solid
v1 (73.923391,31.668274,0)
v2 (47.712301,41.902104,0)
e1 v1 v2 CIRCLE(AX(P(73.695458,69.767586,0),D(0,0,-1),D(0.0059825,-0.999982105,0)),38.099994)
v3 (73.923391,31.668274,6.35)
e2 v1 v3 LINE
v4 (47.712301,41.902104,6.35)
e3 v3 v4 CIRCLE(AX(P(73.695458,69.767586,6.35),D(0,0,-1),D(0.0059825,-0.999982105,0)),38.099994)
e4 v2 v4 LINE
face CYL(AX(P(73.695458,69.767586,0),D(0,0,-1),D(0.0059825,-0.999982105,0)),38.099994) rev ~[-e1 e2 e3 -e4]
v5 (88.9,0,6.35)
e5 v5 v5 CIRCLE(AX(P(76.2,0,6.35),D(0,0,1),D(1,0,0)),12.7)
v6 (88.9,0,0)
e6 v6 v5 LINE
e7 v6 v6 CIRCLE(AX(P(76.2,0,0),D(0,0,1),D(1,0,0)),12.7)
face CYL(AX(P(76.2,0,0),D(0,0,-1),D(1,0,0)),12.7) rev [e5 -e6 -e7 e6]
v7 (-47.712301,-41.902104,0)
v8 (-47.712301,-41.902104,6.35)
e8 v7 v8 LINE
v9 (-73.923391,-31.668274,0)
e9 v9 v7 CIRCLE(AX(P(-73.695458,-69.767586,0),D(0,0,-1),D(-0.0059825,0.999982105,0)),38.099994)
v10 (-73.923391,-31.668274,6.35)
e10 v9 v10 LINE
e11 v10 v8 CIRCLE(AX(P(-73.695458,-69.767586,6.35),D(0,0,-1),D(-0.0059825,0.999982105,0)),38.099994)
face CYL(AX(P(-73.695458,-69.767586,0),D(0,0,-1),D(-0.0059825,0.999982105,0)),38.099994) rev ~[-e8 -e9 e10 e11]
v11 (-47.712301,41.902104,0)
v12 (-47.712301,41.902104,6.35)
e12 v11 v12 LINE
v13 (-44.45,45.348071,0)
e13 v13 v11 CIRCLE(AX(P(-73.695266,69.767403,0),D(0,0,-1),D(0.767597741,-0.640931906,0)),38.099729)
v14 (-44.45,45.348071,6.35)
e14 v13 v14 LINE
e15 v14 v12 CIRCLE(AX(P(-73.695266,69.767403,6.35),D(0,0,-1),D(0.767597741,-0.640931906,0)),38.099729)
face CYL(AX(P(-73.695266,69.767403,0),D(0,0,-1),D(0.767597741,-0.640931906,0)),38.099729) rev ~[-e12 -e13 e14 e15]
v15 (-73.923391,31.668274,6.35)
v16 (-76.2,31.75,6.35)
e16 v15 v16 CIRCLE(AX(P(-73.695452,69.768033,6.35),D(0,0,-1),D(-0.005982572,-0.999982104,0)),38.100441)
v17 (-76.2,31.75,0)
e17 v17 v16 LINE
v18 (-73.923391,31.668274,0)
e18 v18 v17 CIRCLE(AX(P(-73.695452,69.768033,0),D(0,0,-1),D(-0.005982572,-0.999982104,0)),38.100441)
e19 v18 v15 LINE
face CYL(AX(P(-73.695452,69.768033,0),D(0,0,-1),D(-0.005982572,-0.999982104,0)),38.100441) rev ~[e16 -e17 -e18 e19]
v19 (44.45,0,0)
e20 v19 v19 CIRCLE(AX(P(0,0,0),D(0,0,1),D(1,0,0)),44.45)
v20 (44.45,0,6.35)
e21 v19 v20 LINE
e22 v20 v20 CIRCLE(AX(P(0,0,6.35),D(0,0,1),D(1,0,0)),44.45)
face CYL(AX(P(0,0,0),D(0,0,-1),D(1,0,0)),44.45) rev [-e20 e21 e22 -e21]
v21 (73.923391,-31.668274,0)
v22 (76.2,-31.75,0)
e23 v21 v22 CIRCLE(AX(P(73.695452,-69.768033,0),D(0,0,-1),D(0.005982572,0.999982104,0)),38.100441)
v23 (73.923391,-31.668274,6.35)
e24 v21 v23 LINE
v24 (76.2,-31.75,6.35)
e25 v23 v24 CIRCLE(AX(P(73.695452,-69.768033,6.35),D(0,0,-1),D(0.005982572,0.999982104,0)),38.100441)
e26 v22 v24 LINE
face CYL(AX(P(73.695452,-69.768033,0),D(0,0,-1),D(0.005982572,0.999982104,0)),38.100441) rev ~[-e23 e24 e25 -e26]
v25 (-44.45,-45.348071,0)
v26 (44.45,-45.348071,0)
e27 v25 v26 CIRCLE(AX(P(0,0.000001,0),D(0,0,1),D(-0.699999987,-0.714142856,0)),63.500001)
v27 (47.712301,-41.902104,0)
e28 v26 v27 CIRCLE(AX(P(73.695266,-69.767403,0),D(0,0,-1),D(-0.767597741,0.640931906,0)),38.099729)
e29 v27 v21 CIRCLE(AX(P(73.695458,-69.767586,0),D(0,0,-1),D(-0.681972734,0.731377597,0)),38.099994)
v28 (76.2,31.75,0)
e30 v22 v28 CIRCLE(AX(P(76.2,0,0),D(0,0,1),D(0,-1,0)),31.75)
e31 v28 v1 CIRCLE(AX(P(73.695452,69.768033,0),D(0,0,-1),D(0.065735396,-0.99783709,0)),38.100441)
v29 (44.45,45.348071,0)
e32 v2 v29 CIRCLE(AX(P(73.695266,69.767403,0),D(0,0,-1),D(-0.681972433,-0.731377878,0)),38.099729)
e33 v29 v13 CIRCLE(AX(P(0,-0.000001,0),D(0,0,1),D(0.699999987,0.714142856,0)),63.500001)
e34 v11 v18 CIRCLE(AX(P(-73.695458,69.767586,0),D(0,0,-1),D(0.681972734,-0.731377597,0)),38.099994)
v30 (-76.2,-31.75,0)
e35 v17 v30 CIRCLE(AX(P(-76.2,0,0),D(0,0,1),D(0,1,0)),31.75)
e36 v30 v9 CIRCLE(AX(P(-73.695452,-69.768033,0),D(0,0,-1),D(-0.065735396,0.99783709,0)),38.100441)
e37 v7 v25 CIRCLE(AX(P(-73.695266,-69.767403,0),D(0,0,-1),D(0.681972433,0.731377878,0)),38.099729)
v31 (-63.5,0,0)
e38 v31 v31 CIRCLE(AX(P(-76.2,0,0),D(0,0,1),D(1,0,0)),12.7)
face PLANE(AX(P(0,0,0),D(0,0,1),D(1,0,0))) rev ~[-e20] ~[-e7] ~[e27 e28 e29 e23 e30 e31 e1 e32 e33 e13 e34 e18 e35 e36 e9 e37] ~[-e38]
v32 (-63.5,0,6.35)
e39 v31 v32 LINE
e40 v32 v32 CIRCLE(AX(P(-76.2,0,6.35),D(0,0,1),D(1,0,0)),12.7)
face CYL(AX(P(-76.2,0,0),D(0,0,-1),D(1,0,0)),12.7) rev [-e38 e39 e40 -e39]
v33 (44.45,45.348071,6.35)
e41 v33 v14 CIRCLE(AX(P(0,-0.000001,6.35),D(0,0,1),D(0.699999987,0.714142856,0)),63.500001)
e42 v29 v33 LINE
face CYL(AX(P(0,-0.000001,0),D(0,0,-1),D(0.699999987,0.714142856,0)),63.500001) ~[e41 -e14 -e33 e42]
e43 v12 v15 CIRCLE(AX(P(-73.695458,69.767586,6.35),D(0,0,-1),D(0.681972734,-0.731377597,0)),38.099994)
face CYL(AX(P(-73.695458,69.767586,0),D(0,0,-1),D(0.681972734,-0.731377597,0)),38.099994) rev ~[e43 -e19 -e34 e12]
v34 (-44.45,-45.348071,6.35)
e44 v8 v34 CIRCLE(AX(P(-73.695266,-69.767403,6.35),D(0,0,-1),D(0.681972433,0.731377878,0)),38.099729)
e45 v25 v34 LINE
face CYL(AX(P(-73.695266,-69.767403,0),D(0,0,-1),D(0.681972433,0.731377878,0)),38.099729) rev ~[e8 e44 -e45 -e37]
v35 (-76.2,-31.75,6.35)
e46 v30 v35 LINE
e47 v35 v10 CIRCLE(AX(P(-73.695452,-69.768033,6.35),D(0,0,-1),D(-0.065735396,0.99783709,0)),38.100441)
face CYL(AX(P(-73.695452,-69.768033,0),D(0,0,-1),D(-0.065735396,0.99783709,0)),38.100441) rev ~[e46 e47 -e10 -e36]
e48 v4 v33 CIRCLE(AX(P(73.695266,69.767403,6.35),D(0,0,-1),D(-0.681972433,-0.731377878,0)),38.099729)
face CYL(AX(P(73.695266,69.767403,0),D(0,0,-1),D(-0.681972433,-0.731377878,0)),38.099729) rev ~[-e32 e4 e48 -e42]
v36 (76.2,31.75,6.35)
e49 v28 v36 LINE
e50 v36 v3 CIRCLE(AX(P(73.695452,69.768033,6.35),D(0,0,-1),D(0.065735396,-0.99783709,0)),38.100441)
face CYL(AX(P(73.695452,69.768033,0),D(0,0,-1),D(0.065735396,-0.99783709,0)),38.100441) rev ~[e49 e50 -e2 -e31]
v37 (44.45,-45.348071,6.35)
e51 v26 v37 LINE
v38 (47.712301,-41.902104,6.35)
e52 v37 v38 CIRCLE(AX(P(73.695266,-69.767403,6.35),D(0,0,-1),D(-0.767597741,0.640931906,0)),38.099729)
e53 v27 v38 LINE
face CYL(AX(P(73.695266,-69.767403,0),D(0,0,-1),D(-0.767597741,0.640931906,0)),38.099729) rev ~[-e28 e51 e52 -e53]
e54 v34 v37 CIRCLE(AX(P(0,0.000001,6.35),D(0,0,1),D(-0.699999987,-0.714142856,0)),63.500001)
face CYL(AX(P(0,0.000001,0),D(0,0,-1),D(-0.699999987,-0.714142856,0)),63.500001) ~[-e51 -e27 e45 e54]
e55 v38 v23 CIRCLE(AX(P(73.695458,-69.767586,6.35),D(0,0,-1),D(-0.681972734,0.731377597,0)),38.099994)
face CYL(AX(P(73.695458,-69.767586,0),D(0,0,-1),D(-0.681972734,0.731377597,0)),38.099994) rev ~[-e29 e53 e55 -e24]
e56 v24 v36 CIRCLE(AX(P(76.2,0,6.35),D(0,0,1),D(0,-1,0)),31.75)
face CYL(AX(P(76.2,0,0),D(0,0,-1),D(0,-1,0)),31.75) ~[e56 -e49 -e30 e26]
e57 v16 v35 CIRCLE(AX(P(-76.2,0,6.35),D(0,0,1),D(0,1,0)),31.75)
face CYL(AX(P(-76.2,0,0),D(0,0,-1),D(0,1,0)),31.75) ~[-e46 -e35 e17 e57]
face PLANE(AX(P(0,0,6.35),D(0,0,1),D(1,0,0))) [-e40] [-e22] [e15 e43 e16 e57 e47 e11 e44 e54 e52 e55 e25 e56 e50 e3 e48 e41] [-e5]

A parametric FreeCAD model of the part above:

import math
import FreeCAD as App
import Part
import Sketcher

V = App.Vector
Q = App.Units.Quantity

doc = App.newDocument("Part")
params = doc.addObject("Spreadsheet::Sheet", "Params")
for row, (alias, value) in enumerate([
    ("sketch1_diameter", "1 in"),
    ("sketch1_diameter2", "3.5 in"),
    ("sketch1_radius", "2.5 in"),
    ("sketch1_radius2", "1.25 in"),
    ("pad1_length", "0.25 in"),
], start=1):
    params.set(f"A{row}", alias)
    params.set(f"B{row}", "=" + value)
    params.setAlias(f"B{row}", alias)

body = doc.addObject("PartDesign::Body", "Body")

# Sketch on XY plane
sketch1 = body.newObject("Sketcher::SketchObject", "Sketch")
sketch1.AttachmentSupport = (doc.getObject("XY_Plane"), [""])
sketch1.MapMode = "FlatFace"
sketch1.addGeometry(Part.ArcOfCircle(Part.Circle(V(73.695458, -69.767586, 0), V(0, 0, 1), 38.099994), math.radians(89.657226), math.radians(132.997992)), False)
sketch1.addGeometry(Part.ArcOfCircle(Part.Circle(V(73.695452, -69.768033, 0), V(0, 0, 1), 38.100441), math.radians(86.230921), math.radians(89.657222)), False)
sketch1.addGeometry(Part.ArcOfCircle(Part.Circle(V(76.2, 0, 0), V(0, 0, 1), 31.75), math.radians(-90), math.radians(90)), False)
sketch1.addGeometry(Part.ArcOfCircle(Part.Circle(V(73.695452, 69.768033, 0), V(0, 0, 1), 38.100441), math.radians(-89.657222), math.radians(-86.230921)), False)
sketch1.addGeometry(Part.ArcOfCircle(Part.Circle(V(73.695458, 69.767586, 0), V(0, 0, 1), 38.099994), math.radians(-132.997992), math.radians(-89.657226)), False)
sketch1.addGeometry(Part.ArcOfCircle(Part.Circle(V(73.695266, 69.767403, 0), V(0, 0, 1), 38.099729), math.radians(-140.138655), math.radians(-132.997969)), False)
sketch1.addGeometry(Part.ArcOfCircle(Part.Circle(V(0, -0.000001, 0), V(0, 0, 1), 63.500001), math.radians(45.572997), math.radians(134.427003)), False)
sketch1.addGeometry(Part.ArcOfCircle(Part.Circle(V(-73.695266, 69.767403, 0), V(0, 0, 1), 38.099729), math.radians(-47.002031), math.radians(-39.861345)), False)
sketch1.addGeometry(Part.ArcOfCircle(Part.Circle(V(-73.695458, 69.767586, 0), V(0, 0, 1), 38.099994), math.radians(-90.342774), math.radians(-47.002008)), False)
sketch1.addGeometry(Part.ArcOfCircle(Part.Circle(V(-73.695452, 69.768033, 0), V(0, 0, 1), 38.100441), math.radians(-93.769079), math.radians(-90.342778)), False)
sketch1.addGeometry(Part.ArcOfCircle(Part.Circle(V(-76.2, 0, 0), V(0, 0, 1), 31.75), math.radians(90), math.radians(270)), False)
sketch1.addGeometry(Part.ArcOfCircle(Part.Circle(V(-73.695452, -69.768033, 0), V(0, 0, 1), 38.100441), math.radians(90.342778), math.radians(93.769079)), False)
sketch1.addGeometry(Part.ArcOfCircle(Part.Circle(V(-73.695458, -69.767586, 0), V(0, 0, 1), 38.099994), math.radians(47.002008), math.radians(90.342774)), False)
sketch1.addGeometry(Part.ArcOfCircle(Part.Circle(V(-73.695266, -69.767403, 0), V(0, 0, 1), 38.099729), math.radians(39.861345), math.radians(47.002031)), False)
sketch1.addGeometry(Part.ArcOfCircle(Part.Circle(V(0, 0.000001, 0), V(0, 0, 1), 63.500001), math.radians(-134.427003), math.radians(-45.572997)), False)
sketch1.addGeometry(Part.ArcOfCircle(Part.Circle(V(73.695266, -69.767403, 0), V(0, 0, 1), 38.099729), math.radians(132.997969), math.radians(140.138655)), False)
sketch1.addGeometry(Part.Circle(V(-76.2, 0, 0), V(0, 0, 1), 12.7), False)
sketch1.addGeometry(Part.Circle(V(0, 0, 0), V(0, 0, 1), 44.45), False)
sketch1.addGeometry(Part.Circle(V(76.2, 0, 0), V(0, 0, 1), 12.7), False)
sketch1.addConstraint(Sketcher.Constraint("Tangent", 0, 1, 1, 2))
sketch1.addConstraint(Sketcher.Constraint("Coincident", 1, 1, 2, 1))
sketch1.addConstraint(Sketcher.Constraint("Coincident", 2, 2, 3, 2))
sketch1.addConstraint(Sketcher.Constraint("Tangent", 3, 1, 4, 2))
sketch1.addConstraint(Sketcher.Constraint("Tangent", 4, 1, 5, 2))
sketch1.addConstraint(Sketcher.Constraint("Coincident", 5, 1, 6, 1))
sketch1.addConstraint(Sketcher.Constraint("Coincident", 6, 2, 7, 2))
sketch1.addConstraint(Sketcher.Constraint("Tangent", 7, 1, 8, 2))
sketch1.addConstraint(Sketcher.Constraint("Tangent", 8, 1, 9, 2))
sketch1.addConstraint(Sketcher.Constraint("Coincident", 9, 1, 10, 1))
sketch1.addConstraint(Sketcher.Constraint("Coincident", 10, 2, 11, 2))
sketch1.addConstraint(Sketcher.Constraint("Tangent", 11, 1, 12, 2))
sketch1.addConstraint(Sketcher.Constraint("Tangent", 12, 1, 13, 2))
sketch1.addConstraint(Sketcher.Constraint("Coincident", 13, 1, 14, 1))
sketch1.addConstraint(Sketcher.Constraint("Coincident", 14, 2, 15, 2))
sketch1.addConstraint(Sketcher.Constraint("Tangent", 15, 1, 0, 2))
sketch1.addConstraint(Sketcher.Constraint("Coincident", 6, 3, -1, 1))
sketch1.addConstraint(Sketcher.Constraint("Coincident", 14, 3, -1, 1))
sketch1.addConstraint(Sketcher.Constraint("Coincident", 17, 3, -1, 1))
sketch1.addConstraint(Sketcher.Constraint("Coincident", 16, 3, 10, 3))
sketch1.addConstraint(Sketcher.Constraint("Coincident", 18, 3, 2, 3))
sketch1.addConstraint(Sketcher.Constraint("Equal", 1, 3))
sketch1.addConstraint(Sketcher.Constraint("Equal", 0, 4))
sketch1.addConstraint(Sketcher.Constraint("Equal", 5, 7))
sketch1.addConstraint(Sketcher.Constraint("Equal", 4, 8))
sketch1.addConstraint(Sketcher.Constraint("Equal", 3, 9))
sketch1.addConstraint(Sketcher.Constraint("Equal", 2, 10))
sketch1.addConstraint(Sketcher.Constraint("Equal", 9, 11))
sketch1.addConstraint(Sketcher.Constraint("Equal", 8, 12))
sketch1.addConstraint(Sketcher.Constraint("Equal", 7, 13))
sketch1.addConstraint(Sketcher.Constraint("Equal", 6, 14))
sketch1.addConstraint(Sketcher.Constraint("Equal", 13, 15))
sketch1.addConstraint(Sketcher.Constraint("Equal", 16, 18))
sketch1.addConstraint(Sketcher.Constraint("Symmetric", 0, 3, 8, 3, -1, 1))
sketch1.addConstraint(Sketcher.Constraint("Symmetric", 2, 3, 10, 3, -1, 1))
sketch1.addConstraint(Sketcher.Constraint("Symmetric", 3, 3, 11, 3, -1, 1))
sketch1.addConstraint(Sketcher.Constraint("Symmetric", 5, 3, 7, 3, -2))
sketch1.addConstraint(Sketcher.Constraint("PointOnObject", 2, 3, -1))
sketch1.addConstraint(Sketcher.Constraint("Horizontal", 4, 1, 7, 1))
sketch1.addConstraint(Sketcher.Constraint("Horizontal", 3, 1, 8, 1))
sketch1.addConstraint(Sketcher.Constraint("Horizontal", 0, 1, 11, 1))
sketch1.addConstraint(Sketcher.Constraint("Horizontal", 12, 1, 15, 1))
sketch1.addConstraint(Sketcher.Constraint("Vertical", 18, 3, 1, 1))
sketch1.addConstraint(Sketcher.Constraint("Vertical", 0, 1, 3, 1))
sketch1.addConstraint(Sketcher.Constraint("Vertical", 7, 1, 12, 1))
sketch1.addConstraint(Sketcher.Constraint("Diameter", 16, Q("1 in")))
sketch1.addConstraint(Sketcher.Constraint("Diameter", 17, Q("3.5 in")))
sketch1.addConstraint(Sketcher.Constraint("Radius", 6, Q("2.5 in")))
sketch1.addConstraint(Sketcher.Constraint("Radius", 2, Q("1.25 in")))
sketch1.addConstraint(Sketcher.Constraint("DistanceX", -1, 1, 2, 3, Q("3 in")))
sketch1.addConstraint(Sketcher.Constraint("DistanceX", -1, 1, 5, 1, Q("1.75 in")))
sketch1.addConstraint(Sketcher.Constraint("Radius", 1, 38.100441))
sketch1.addConstraint(Sketcher.Constraint("Radius", 5, 38.099729))
sketch1.addConstraint(Sketcher.Constraint("Radius", 0, 38.099994))
sketch1.addConstraint(Sketcher.Constraint("DistanceX", -1, 1, 4, 1, 47.712301))
sketch1.addConstraint(Sketcher.Constraint("DistanceX", -1, 1, 0, 1, 73.923391))
sketch1.setExpression("Constraints[45]", "Params.sketch1_diameter")
sketch1.setExpression("Constraints[46]", "Params.sketch1_diameter2")
sketch1.setExpression("Constraints[47]", "Params.sketch1_radius")
sketch1.setExpression("Constraints[48]", "Params.sketch1_radius2")
pad1 = body.newObject("PartDesign::Pad", "Pad")
pad1.Profile = sketch1
pad1.setExpression("Length", "Params.pad1_length")

doc.recompute()
